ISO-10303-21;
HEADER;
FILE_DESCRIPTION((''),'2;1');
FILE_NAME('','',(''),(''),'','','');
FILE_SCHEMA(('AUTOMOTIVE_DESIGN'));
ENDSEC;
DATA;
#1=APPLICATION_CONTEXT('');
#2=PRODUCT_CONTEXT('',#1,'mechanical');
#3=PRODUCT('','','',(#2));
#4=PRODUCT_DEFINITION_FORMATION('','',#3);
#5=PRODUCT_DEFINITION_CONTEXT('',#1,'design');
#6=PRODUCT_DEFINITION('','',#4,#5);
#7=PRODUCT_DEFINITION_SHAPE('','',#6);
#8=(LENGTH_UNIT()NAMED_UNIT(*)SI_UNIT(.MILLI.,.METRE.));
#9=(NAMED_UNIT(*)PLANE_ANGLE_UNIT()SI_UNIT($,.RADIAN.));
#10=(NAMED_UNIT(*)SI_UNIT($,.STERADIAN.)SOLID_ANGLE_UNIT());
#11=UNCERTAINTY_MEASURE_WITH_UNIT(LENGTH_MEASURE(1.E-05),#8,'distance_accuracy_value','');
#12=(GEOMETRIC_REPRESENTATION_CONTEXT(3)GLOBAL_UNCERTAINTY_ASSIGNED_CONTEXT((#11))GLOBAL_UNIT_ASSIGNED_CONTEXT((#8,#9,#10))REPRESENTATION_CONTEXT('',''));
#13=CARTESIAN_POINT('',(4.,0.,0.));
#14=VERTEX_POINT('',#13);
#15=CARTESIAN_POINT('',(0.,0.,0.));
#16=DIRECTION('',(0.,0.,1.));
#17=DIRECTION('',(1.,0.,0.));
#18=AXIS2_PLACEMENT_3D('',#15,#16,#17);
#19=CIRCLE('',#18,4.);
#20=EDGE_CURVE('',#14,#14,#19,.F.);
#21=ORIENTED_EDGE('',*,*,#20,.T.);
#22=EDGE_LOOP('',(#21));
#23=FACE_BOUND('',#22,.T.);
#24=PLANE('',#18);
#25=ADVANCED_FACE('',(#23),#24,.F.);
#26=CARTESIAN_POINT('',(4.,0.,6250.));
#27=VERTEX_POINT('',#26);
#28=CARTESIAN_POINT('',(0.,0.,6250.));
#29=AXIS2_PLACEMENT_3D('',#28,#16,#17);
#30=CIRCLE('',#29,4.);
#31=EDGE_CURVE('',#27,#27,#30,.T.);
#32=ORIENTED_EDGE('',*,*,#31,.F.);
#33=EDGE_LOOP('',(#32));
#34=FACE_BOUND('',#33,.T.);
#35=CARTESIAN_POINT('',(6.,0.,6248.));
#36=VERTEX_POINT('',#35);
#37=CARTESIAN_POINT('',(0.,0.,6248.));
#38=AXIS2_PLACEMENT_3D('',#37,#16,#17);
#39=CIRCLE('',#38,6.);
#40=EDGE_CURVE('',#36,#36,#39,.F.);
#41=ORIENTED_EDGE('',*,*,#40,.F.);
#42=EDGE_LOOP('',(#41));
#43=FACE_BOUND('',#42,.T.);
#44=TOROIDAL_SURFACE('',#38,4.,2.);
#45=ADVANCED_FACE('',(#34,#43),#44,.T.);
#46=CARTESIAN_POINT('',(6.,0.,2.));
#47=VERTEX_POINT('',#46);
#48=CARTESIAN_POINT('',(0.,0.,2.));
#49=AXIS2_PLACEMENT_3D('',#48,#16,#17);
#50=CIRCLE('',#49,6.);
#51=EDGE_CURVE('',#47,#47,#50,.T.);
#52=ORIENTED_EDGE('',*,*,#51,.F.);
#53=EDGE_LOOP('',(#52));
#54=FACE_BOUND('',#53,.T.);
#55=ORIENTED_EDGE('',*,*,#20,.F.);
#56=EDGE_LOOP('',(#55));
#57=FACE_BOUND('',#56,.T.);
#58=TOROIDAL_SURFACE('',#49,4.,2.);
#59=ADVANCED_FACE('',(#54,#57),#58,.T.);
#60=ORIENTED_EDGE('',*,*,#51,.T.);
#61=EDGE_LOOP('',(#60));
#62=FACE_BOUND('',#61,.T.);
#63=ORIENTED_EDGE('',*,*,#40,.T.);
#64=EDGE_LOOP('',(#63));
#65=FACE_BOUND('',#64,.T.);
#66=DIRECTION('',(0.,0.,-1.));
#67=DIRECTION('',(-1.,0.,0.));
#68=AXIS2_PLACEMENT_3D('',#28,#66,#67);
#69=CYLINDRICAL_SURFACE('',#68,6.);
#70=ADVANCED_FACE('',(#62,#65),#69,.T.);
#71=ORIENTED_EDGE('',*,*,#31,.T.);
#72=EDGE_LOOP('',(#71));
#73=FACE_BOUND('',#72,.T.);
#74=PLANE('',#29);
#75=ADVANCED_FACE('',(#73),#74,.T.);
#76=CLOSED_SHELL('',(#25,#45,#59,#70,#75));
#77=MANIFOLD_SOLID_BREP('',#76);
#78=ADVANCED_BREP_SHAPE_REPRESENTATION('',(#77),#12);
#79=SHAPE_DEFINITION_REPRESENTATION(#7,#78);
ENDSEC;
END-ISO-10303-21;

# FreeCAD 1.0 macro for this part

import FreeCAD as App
import Part
import Sketcher
Q = App.Units.Quantity


def edges_at(feature, points):
    """Names of the edges that pass closest to the given points."""
    edges = feature.Shape.Edges
    near = lambda p: min(range(len(edges)), key=lambda i: edges[i].distToShape(Part.Vertex(*p))[0])
    return sorted({f"Edge{near(p) + 1}" for p in points})

doc = App.newDocument("Part")
body = doc.addObject("PartDesign::Body", "Body")

# Sketch on XY plane
sketch1 = body.newObject("Sketcher::SketchObject", "Sketch")
sketch1.AttachmentSupport = (doc.getObject("XY_Plane"), [""])
sketch1.MapMode = "FlatFace"
sketch1.addGeometry(Part.Circle(App.Vector(0, 0, 0), App.Vector(0, 0, 1), 6), False)
sketch1.addConstraint([
    Sketcher.Constraint("Coincident", 0, 3, -1, 1),
    Sketcher.Constraint("Diameter", 0, Q("12 mm")),
])
pad1 = body.newObject("PartDesign::Pad", "Pad")
pad1.Profile = sketch1
pad1.Length = 6250
doc.recompute()

fillet = body.newObject("PartDesign::Fillet", "Fillet")
fillet.Base = (pad1, edges_at(pad1, [(-6, 0, 0), (-6, 0, 6250)]))
fillet.Radius = 2

doc.recompute()
